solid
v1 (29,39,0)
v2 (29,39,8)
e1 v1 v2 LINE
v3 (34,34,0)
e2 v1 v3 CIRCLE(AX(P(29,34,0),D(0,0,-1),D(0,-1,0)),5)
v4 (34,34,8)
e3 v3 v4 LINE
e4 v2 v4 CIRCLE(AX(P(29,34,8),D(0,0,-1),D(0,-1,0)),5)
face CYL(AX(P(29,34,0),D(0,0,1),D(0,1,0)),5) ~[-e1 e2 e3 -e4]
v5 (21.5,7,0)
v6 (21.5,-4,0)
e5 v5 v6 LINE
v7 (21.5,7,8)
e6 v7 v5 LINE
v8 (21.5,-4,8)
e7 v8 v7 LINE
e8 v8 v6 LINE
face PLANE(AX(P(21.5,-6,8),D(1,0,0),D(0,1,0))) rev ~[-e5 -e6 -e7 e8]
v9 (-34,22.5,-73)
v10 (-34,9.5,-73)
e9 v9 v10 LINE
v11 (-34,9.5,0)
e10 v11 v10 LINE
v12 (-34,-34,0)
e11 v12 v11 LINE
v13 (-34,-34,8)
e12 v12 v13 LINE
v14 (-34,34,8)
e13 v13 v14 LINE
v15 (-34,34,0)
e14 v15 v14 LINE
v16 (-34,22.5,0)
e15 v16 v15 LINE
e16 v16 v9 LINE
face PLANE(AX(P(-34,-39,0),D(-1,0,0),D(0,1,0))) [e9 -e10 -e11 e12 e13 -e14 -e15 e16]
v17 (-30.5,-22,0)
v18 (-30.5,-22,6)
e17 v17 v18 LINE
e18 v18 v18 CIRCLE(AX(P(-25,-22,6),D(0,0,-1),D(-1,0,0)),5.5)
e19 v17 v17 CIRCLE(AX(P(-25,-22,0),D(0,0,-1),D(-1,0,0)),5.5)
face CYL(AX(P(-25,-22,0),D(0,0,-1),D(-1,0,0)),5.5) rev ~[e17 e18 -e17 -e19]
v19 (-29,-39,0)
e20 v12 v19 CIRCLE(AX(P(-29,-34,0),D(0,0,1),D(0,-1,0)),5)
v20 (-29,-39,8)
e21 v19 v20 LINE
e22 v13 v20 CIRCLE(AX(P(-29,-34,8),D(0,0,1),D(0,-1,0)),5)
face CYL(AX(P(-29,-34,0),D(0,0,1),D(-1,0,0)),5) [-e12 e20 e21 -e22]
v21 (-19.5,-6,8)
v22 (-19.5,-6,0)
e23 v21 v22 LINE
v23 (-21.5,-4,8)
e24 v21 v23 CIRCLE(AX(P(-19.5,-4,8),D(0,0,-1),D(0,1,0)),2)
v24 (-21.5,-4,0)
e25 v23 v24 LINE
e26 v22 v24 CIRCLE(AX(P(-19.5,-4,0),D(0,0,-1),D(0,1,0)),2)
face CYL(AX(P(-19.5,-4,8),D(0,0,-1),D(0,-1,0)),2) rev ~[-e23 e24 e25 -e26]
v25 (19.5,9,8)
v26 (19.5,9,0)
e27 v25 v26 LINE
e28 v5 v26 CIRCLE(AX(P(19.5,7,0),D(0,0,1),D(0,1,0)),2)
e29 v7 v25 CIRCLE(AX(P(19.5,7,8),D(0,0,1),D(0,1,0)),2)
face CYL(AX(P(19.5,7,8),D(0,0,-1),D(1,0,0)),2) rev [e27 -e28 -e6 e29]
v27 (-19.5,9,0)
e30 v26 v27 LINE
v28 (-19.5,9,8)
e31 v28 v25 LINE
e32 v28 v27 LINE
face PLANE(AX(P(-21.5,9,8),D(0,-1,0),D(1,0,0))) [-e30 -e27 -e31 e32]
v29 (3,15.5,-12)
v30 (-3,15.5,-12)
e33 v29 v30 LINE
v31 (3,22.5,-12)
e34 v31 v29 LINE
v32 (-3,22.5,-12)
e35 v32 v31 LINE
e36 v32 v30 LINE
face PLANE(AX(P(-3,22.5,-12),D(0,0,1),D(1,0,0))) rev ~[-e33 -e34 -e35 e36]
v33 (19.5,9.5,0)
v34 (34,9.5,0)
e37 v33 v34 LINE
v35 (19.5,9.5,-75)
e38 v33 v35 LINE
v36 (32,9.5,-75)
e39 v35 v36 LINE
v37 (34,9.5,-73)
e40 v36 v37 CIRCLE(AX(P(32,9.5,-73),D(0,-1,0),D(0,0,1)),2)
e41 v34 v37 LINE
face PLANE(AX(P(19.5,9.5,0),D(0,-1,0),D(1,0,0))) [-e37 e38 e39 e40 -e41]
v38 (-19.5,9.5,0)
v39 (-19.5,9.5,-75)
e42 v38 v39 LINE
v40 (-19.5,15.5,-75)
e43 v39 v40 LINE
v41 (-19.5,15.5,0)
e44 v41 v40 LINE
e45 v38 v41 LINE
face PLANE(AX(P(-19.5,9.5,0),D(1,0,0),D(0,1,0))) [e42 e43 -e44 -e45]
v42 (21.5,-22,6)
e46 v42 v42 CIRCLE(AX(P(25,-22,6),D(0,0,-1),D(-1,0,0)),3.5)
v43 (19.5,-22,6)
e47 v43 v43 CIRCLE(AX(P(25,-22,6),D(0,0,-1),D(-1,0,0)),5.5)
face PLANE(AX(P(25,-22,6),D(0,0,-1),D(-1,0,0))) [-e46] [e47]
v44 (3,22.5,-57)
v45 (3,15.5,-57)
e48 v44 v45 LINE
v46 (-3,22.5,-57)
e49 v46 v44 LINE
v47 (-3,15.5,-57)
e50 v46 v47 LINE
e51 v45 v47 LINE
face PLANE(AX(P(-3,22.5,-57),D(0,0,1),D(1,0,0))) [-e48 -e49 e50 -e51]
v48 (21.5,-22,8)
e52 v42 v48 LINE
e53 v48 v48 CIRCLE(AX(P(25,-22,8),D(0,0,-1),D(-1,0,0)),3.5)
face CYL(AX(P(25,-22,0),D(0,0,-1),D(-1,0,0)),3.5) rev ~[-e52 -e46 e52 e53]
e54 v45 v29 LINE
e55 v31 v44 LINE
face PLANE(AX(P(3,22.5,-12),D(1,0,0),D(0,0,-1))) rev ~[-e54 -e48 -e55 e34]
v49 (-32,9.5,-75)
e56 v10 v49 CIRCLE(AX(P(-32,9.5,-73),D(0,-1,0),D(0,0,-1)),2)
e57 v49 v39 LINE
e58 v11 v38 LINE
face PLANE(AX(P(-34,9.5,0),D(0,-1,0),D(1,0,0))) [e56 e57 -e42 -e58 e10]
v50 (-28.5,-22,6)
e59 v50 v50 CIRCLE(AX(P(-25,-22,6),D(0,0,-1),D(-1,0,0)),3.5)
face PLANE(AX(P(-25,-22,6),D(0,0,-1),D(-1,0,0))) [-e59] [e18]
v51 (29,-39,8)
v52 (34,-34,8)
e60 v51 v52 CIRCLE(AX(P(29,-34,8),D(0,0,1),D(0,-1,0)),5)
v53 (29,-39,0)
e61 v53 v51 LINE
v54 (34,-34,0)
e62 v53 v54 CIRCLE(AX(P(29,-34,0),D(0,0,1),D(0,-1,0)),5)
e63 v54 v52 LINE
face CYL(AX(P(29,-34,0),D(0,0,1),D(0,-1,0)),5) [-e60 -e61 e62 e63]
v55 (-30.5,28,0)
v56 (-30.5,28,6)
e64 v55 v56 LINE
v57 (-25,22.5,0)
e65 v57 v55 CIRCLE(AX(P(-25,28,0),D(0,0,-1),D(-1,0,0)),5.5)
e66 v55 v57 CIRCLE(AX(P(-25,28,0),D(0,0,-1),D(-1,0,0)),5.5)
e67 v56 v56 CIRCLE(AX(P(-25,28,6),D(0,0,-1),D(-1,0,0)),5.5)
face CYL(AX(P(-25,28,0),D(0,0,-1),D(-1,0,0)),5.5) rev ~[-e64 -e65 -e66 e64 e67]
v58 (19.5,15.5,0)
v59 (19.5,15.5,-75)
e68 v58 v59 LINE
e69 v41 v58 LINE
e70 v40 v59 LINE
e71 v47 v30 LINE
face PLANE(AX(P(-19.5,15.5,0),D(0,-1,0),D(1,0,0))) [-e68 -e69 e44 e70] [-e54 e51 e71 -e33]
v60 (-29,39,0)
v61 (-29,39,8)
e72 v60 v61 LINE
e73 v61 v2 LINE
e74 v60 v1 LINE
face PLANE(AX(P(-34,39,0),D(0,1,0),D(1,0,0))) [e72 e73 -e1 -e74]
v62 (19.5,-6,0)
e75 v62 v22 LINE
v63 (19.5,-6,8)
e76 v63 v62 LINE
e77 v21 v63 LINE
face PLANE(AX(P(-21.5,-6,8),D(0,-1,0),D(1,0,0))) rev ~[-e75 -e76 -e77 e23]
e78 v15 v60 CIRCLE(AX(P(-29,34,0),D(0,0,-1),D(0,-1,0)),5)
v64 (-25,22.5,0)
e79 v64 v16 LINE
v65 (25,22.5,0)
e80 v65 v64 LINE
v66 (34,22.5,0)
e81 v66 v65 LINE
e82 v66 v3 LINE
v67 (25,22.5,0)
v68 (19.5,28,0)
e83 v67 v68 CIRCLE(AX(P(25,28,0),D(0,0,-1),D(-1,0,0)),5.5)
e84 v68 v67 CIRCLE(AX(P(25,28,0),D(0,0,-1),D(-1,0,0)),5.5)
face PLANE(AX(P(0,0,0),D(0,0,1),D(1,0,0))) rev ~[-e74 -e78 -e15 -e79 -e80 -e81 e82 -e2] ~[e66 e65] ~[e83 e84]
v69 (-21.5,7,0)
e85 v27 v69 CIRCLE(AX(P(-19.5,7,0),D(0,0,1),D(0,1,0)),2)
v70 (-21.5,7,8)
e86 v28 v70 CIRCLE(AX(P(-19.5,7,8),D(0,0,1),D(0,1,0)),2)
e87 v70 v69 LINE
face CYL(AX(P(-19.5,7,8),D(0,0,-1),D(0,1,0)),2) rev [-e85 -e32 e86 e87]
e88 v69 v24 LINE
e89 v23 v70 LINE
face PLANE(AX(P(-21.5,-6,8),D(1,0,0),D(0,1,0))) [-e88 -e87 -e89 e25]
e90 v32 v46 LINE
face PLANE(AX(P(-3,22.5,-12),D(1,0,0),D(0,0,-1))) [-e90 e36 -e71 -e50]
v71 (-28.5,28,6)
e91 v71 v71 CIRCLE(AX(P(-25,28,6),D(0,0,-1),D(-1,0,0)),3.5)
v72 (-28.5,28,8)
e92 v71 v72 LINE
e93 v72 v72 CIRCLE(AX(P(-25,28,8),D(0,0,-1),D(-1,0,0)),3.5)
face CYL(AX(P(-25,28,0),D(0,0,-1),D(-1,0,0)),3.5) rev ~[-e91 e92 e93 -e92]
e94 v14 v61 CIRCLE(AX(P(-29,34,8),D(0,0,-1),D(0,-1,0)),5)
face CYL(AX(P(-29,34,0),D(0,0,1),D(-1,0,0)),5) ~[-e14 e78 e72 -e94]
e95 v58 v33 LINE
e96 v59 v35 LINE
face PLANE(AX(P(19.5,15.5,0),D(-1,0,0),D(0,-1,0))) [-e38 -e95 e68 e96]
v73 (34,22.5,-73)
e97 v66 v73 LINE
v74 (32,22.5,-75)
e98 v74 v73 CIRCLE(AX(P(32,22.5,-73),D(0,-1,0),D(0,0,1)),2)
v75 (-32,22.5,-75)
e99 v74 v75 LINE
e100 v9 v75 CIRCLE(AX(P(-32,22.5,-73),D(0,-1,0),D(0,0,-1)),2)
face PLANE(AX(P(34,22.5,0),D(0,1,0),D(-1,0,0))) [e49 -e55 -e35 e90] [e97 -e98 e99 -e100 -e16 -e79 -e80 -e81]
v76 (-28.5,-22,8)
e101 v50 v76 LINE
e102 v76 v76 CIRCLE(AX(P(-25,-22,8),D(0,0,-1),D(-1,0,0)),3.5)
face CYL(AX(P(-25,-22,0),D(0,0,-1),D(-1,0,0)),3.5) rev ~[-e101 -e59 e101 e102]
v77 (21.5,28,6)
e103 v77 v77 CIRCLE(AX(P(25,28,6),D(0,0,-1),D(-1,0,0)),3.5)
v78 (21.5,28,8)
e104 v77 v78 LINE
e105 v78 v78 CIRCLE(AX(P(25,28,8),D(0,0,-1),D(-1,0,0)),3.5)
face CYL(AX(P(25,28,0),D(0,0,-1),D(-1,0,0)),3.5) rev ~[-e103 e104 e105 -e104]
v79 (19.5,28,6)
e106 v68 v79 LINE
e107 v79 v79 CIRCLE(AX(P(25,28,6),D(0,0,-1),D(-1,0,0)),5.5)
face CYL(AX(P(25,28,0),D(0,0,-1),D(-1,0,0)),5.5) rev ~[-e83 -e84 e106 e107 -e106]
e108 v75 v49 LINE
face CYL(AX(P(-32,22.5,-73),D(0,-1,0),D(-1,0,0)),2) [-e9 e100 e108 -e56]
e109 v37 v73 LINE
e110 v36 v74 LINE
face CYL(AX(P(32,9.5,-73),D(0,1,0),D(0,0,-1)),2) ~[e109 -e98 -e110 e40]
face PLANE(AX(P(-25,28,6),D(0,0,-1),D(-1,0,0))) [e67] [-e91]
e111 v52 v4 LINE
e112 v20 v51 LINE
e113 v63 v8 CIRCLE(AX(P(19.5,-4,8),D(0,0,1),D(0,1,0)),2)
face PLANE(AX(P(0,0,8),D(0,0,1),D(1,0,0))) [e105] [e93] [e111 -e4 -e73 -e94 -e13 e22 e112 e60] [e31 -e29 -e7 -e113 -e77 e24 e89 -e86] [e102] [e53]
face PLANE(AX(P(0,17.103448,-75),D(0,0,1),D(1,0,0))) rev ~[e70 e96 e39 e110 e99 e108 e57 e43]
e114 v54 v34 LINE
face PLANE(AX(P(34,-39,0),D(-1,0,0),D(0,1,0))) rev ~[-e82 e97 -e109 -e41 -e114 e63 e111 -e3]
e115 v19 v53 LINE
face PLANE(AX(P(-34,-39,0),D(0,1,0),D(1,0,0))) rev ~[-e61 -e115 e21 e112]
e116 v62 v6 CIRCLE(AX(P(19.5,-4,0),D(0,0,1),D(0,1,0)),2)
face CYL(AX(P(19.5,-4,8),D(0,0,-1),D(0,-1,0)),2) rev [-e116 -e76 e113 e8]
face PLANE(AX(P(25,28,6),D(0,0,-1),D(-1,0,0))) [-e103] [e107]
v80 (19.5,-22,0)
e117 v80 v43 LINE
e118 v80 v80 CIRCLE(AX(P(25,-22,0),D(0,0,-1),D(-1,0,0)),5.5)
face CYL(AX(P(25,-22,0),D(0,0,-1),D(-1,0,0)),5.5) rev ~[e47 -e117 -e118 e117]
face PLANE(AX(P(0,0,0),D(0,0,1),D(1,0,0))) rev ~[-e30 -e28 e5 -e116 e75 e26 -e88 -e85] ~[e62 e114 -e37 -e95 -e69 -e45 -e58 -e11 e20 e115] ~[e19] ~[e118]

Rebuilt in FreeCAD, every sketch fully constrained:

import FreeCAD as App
import Part
import Sketcher


def edges_at(feature, points):
    """Names of the edges that pass closest to the given points."""
    edges = feature.Shape.Edges
    near = lambda p: min(range(len(edges)), key=lambda i: edges[i].distToShape(Part.Vertex(*p))[0])
    return sorted({f"Edge{near(p) + 1}" for p in points})


def add_polygon(sketch, points):
    """Adds a closed chain of lines whose ends are joined by coincident constraints."""
    first, n = sketch.GeometryCount, len(points)
    for a, b in zip(points, points[1:] + points[:1]):
        sketch.addGeometry(Part.LineSegment(App.Vector(*a, 0), App.Vector(*b, 0)), False)
    for i in range(n):
        sketch.addConstraint(Sketcher.Constraint("Coincident", first + i, 2, first + (i + 1) % n, 1))

doc = App.newDocument("Part")
body = doc.addObject("PartDesign::Body", "Body")

# Sketch on XY plane
sketch1 = body.newObject("Sketcher::SketchObject", "Sketch")
sketch1.AttachmentSupport = (doc.getObject("XY_Plane"), [""])
sketch1.MapMode = "FlatFace"
add_polygon(sketch1, [(-34, 39), (-34, -39), (34, -39), (34, 39)])  # lines 0-3
sketch1.addConstraint(Sketcher.Constraint("Vertical", 0))
sketch1.addConstraint(Sketcher.Constraint("Horizontal", 1))
sketch1.addConstraint(Sketcher.Constraint("Vertical", 2))
sketch1.addConstraint(Sketcher.Constraint("Horizontal", 3))
sketch1.addConstraint(Sketcher.Constraint("Symmetric", 0, 2, 2, 2, -1, 1))
sketch1.addConstraint(Sketcher.Constraint("DistanceX", 1, 1, 1, 2, 68.0))
sketch1.addConstraint(Sketcher.Constraint("DistanceY", 0, 2, 0, 1, 78.0))
pad1 = body.newObject("PartDesign::Pad", "Pad")
pad1.Profile = sketch1
pad1.Length = 8

# Sketch on XY plane
sketch2 = body.newObject("Sketcher::SketchObject", "Sketch001")
sketch2.AttachmentSupport = (doc.getObject("XY_Plane"), [""])
sketch2.MapMode = "FlatFace"
add_polygon(sketch2, [(-34, 22), (34, 22), (34, 10), (20, 10), (20, 16), (-20, 16), (-20, 10), (-34, 10)])  # lines 0-7
sketch2.addConstraint(Sketcher.Constraint("Horizontal", 0))
sketch2.addConstraint(Sketcher.Constraint("Vertical", 1))
sketch2.addConstraint(Sketcher.Constraint("Horizontal", 2))
sketch2.addConstraint(Sketcher.Constraint("Vertical", 3))
sketch2.addConstraint(Sketcher.Constraint("Horizontal", 4))
sketch2.addConstraint(Sketcher.Constraint("Vertical", 5))
sketch2.addConstraint(Sketcher.Constraint("Horizontal", 6))
sketch2.addConstraint(Sketcher.Constraint("Vertical", 7))
sketch2.addConstraint(Sketcher.Constraint("Symmetric", 2, 2, 5, 2, -2))
sketch2.addConstraint(Sketcher.Constraint("Equal", 2, 6))
sketch2.addConstraint(Sketcher.Constraint("DistanceX", 0, 1, 0, 2, 68.0))
sketch2.addConstraint(Sketcher.Constraint("DistanceX", 4, 2, 4, 1, 39.0))
sketch2.addConstraint(Sketcher.Constraint("DistanceY", 1, 2, 1, 1, 13.0))
sketch2.addConstraint(Sketcher.Constraint("DistanceY", 3, 1, 3, 2, 6.0))
sketch2.addConstraint(Sketcher.Constraint("DistanceY", -1, 1, 0, 2, 22.5))
pad2 = body.newObject("PartDesign::Pad", "Pad001")
pad2.Profile = sketch2
pad2.Length = 75
pad2.Reversed = True

# Sketch on XY plane
sketch3 = body.newObject("Sketcher::SketchObject", "Sketch002")
sketch3.AttachmentSupport = (doc.getObject("XY_Plane"), [""])
sketch3.MapMode = "FlatFace"
sketch3.AttachmentOffset = App.Placement(App.Vector(0, 0, 8), App.Rotation())
add_polygon(sketch3, [(-22, 9), (-22, -6), (22, -6), (22, 9)])  # lines 0-3
sketch3.addConstraint(Sketcher.Constraint("Vertical", 0))
sketch3.addConstraint(Sketcher.Constraint("Horizontal", 1))
sketch3.addConstraint(Sketcher.Constraint("Vertical", 2))
sketch3.addConstraint(Sketcher.Constraint("Horizontal", 3))
sketch3.addConstraint(Sketcher.Constraint("DistanceX", 1, 1, 1, 2, 43.0))
sketch3.addConstraint(Sketcher.Constraint("DistanceY", 0, 2, 0, 1, 15.0))
sketch3.addConstraint(Sketcher.Constraint("DistanceY", 0, 2, -1, 1, 6.0))
sketch3.addConstraint(Sketcher.Constraint("DistanceX", 0, 2, -1, 1, 21.5))
pocket1 = body.newObject("PartDesign::Pocket", "Pocket")
pocket1.Profile = sketch3
pocket1.Type = "UpToFirst"
doc.recompute()

fillet = body.newObject("PartDesign::Fillet", "Fillet")
fillet.Base = (pocket1, edges_at(pocket1, [
    (34, 16, -75),
    (-34, 16, -75),
    (-21.5, -6, 4),
    (-21.5, 9, 4),
    (21.5, 9, 4),
    (21.5, -6, 4),
]))
fillet.Radius = 2
doc.recompute()

fillet2 = body.newObject("PartDesign::Fillet", "Fillet001")
fillet2.Base = (fillet, edges_at(fillet, [
    (34, -39, 4),
    (-34, -39, 4),
    (-34, 39, 4),
    (34, 39, 4),
]))
fillet2.Radius = 5

# Sketch on XZ plane
sketch4 = body.newObject("Sketcher::SketchObject", "Sketch003")
sketch4.AttachmentSupport = (doc.getObject("XZ_Plane"), [""])
sketch4.MapMode = "FlatFace"
sketch4.AttachmentOffset = App.Placement(App.Vector(0, 0, -22.5), App.Rotation())
add_polygon(sketch4, [(-3, -57), (-3, -12), (3, -12), (3, -57)])  # lines 0-3
sketch4.addConstraint(Sketcher.Constraint("Vertical", 0))
sketch4.addConstraint(Sketcher.Constraint("Horizontal", 1))
sketch4.addConstraint(Sketcher.Constraint("Vertical", 2))
sketch4.addConstraint(Sketcher.Constraint("Horizontal", 3))
sketch4.addConstraint(Sketcher.Constraint("DistanceX", 1, 1, 1, 2, 6.0))
sketch4.addConstraint(Sketcher.Constraint("DistanceY", 0, 1, 0, 2, 45.0))
sketch4.addConstraint(Sketcher.Constraint("DistanceX", 0, 2, -1, 1, 3.0))
sketch4.addConstraint(Sketcher.Constraint("DistanceY", 0, 2, -1, 1, 12.0))
pocket2 = body.newObject("PartDesign::Pocket", "Pocket001")
pocket2.Profile = sketch4
pocket2.Type = "ThroughAll"
pocket2.Reversed = True

# Sketch on XY plane
sketch5 = body.newObject("Sketcher::SketchObject", "Sketch004")
sketch5.AttachmentSupport = (doc.getObject("XY_Plane"), [""])
sketch5.MapMode = "FlatFace"
sketch5.addGeometry(Part.Circle(App.Vector(25, 28, 0), App.Vector(0, 0, 1), 3.5), False)
sketch5.addGeometry(Part.Circle(App.Vector(-25, 28, 0), App.Vector(0, 0, 1), 3.5), False)
sketch5.addGeometry(Part.Circle(App.Vector(25, -22, 0), App.Vector(0, 0, 1), 3.5), False)
sketch5.addGeometry(Part.Circle(App.Vector(-25, -22, 0), App.Vector(0, 0, 1), 3.5), False)
sketch5.addConstraint(Sketcher.Constraint("Equal", 0, 1))
sketch5.addConstraint(Sketcher.Constraint("Equal", 1, 2))
sketch5.addConstraint(Sketcher.Constraint("Equal", 2, 3))
sketch5.addConstraint(Sketcher.Constraint("Symmetric", 0, 3, 1, 3, -2))
sketch5.addConstraint(Sketcher.Constraint("Symmetric", 2, 3, 3, 3, -2))
sketch5.addConstraint(Sketcher.Constraint("Vertical", 0, 3, 2, 3))
sketch5.addConstraint(Sketcher.Constraint("Diameter", 0, 7.0))
sketch5.addConstraint(Sketcher.Constraint("DistanceX", -1, 1, 0, 3, 25.0))
sketch5.addConstraint(Sketcher.Constraint("DistanceY", -1, 1, 0, 3, 28.0))
sketch5.addConstraint(Sketcher.Constraint("DistanceY", 2, 3, -1, 1, 22.0))
pocket3 = body.newObject("PartDesign::Pocket", "Pocket002")
pocket3.Profile = sketch5
pocket3.Type = "ThroughAll"
pocket3.Reversed = True

# Sketch on XY plane
sketch6 = body.newObject("Sketcher::SketchObject", "Sketch005")
sketch6.AttachmentSupport = (doc.getObject("XY_Plane"), [""])
sketch6.MapMode = "FlatFace"
sketch6.addGeometry(Part.Circle(App.Vector(25, 28, 0), App.Vector(0, 0, 1), 6), False)
sketch6.addGeometry(Part.Circle(App.Vector(-25, 28, 0), App.Vector(0, 0, 1), 6), False)
sketch6.addGeometry(Part.Circle(App.Vector(25, -22, 0), App.Vector(0, 0, 1), 6), False)
sketch6.addGeometry(Part.Circle(App.Vector(-25, -22, 0), App.Vector(0, 0, 1), 6), False)
sketch6.addConstraint(Sketcher.Constraint("Equal", 0, 1))
sketch6.addConstraint(Sketcher.Constraint("Equal", 1, 2))
sketch6.addConstraint(Sketcher.Constraint("Equal", 2, 3))
sketch6.addConstraint(Sketcher.Constraint("Symmetric", 0, 3, 1, 3, -2))
sketch6.addConstraint(Sketcher.Constraint("Symmetric", 2, 3, 3, 3, -2))
sketch6.addConstraint(Sketcher.Constraint("Vertical", 0, 3, 2, 3))
sketch6.addConstraint(Sketcher.Constraint("Diameter", 0, 11.0))
sketch6.addConstraint(Sketcher.Constraint("DistanceX", -1, 1, 0, 3, 25.0))
sketch6.addConstraint(Sketcher.Constraint("DistanceY", -1, 1, 0, 3, 28.0))
sketch6.addConstraint(Sketcher.Constraint("DistanceY", 2, 3, -1, 1, 22.0))
pocket4 = body.newObject("PartDesign::Pocket", "Pocket003")
pocket4.Profile = sketch6
pocket4.Length = 6
pocket4.Reversed = True

doc.recompute()
